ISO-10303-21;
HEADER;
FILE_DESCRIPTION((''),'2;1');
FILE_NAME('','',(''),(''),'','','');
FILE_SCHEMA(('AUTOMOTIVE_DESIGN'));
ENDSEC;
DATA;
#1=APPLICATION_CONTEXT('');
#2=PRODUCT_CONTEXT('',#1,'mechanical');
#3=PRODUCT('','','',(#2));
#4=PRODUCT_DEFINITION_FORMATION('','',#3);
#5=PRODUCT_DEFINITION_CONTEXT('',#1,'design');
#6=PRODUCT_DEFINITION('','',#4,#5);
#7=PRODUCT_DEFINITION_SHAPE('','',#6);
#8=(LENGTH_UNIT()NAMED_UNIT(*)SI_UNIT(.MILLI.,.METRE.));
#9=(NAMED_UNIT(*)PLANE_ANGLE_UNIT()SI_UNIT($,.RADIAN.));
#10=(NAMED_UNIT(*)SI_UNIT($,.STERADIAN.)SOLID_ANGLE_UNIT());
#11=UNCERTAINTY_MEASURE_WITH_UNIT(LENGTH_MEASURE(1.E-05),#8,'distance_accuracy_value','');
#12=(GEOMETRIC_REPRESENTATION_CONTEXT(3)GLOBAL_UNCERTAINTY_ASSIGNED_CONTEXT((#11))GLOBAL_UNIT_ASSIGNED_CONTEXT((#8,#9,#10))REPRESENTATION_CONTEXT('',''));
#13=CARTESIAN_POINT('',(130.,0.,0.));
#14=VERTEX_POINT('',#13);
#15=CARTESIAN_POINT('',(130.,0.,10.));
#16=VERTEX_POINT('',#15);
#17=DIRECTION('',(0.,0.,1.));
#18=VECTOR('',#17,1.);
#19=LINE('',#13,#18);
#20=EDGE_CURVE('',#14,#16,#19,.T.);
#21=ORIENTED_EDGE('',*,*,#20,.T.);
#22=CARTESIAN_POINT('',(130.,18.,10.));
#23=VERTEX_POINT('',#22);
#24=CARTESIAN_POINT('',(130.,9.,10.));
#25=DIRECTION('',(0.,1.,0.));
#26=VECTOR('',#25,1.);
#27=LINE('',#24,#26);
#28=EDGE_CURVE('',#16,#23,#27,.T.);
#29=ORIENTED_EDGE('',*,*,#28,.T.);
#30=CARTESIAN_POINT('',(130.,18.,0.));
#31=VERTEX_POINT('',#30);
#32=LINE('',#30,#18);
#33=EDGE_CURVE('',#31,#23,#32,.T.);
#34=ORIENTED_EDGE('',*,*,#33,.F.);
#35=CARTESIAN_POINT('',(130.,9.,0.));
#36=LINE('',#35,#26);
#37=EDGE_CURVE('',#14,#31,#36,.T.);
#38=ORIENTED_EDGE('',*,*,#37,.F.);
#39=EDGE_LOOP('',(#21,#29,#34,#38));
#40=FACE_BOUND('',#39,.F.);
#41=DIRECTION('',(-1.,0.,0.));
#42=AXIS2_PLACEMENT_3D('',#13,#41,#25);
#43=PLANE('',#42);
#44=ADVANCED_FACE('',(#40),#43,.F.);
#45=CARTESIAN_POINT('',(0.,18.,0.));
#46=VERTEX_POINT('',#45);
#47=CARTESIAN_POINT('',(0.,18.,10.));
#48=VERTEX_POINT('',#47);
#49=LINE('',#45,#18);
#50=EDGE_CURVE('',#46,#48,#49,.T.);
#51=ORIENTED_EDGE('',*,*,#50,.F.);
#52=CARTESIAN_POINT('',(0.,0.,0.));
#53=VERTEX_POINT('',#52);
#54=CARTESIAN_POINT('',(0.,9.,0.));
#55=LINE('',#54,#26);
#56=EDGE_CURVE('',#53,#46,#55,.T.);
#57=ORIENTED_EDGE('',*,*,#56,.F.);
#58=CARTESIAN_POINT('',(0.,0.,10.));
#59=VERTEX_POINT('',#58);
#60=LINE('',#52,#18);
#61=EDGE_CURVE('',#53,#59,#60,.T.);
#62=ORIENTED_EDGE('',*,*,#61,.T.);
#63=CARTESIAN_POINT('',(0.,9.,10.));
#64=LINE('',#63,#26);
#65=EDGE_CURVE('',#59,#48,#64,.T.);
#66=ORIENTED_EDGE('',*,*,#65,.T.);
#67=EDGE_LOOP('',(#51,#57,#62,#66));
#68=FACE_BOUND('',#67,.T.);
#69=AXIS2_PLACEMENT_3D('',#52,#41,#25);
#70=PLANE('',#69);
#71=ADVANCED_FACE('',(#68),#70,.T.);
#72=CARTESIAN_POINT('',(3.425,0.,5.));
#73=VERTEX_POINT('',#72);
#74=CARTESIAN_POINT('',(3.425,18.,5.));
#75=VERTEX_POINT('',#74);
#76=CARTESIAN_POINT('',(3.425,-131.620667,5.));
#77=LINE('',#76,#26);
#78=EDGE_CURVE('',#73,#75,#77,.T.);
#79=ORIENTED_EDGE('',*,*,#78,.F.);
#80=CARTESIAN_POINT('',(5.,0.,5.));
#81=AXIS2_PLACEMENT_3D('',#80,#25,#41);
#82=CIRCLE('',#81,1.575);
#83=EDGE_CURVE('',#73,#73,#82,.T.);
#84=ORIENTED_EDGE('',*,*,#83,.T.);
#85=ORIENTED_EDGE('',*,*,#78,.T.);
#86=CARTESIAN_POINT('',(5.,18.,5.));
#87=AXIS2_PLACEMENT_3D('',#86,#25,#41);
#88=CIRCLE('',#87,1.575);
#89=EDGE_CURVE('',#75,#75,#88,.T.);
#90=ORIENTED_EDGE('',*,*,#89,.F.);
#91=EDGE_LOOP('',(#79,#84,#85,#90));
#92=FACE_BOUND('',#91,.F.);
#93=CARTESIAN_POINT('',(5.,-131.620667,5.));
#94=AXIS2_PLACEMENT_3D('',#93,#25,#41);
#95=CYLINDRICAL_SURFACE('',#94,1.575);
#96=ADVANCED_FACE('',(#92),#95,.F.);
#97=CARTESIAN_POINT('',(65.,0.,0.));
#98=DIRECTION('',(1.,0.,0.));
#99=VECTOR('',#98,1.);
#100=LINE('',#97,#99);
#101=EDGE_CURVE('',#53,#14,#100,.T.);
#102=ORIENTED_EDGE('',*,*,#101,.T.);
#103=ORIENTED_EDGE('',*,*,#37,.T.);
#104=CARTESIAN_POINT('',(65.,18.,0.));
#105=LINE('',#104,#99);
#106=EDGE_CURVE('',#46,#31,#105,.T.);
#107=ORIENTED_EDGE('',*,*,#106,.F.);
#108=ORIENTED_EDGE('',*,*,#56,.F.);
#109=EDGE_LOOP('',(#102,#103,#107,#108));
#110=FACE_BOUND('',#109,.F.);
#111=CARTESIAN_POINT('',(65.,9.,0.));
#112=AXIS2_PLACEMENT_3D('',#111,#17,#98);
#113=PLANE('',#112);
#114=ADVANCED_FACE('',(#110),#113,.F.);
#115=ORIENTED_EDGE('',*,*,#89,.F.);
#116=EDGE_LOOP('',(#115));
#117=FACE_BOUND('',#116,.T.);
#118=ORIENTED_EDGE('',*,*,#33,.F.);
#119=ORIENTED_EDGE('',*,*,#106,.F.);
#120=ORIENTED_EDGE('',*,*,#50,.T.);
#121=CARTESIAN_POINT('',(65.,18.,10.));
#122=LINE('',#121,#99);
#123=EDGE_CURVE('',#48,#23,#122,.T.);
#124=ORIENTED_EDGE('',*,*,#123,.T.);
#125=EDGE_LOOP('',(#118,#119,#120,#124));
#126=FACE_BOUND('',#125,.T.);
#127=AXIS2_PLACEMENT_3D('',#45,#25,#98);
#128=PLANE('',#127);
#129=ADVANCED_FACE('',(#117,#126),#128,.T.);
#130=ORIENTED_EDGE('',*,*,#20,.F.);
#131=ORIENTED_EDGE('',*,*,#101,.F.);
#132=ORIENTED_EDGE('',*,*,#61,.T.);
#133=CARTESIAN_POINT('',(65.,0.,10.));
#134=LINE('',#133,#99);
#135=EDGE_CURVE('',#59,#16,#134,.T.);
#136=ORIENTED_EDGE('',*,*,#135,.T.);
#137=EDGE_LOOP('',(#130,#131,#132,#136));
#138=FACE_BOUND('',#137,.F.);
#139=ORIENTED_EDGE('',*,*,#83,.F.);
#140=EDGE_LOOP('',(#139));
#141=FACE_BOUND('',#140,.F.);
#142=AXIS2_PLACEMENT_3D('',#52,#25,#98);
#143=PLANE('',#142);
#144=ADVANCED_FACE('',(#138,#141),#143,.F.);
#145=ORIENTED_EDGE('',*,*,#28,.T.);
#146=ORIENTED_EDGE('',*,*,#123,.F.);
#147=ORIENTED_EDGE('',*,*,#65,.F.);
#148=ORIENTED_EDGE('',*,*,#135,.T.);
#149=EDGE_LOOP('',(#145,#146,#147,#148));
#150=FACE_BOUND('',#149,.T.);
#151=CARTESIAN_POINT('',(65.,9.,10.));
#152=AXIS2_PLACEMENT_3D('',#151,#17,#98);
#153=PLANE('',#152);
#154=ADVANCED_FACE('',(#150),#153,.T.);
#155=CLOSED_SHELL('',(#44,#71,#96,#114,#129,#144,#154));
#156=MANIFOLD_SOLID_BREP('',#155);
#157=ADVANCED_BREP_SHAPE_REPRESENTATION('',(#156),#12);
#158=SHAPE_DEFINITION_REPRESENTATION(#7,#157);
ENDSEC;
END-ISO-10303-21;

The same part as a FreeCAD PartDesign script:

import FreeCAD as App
import Part
import Sketcher
Q = App.Units.Quantity

doc = App.newDocument("Part")
body = doc.addObject("PartDesign::Body", "Body")

sketch1 = body.newObject("Sketcher::SketchObject", "Sketch")
sketch1.AttachmentSupport = (doc.getObject("XY_Plane"), [""])
sketch1.MapMode = "FlatFace"
sketch1.addGeometry([
    Part.LineSegment(App.Vector(0, 18, 0), App.Vector(0, 0, 0)),
    Part.LineSegment(App.Vector(0, 0, 0), App.Vector(130, 0, 0)),
    Part.LineSegment(App.Vector(130, 0, 0), App.Vector(130, 18, 0)),
    Part.LineSegment(App.Vector(130, 18, 0), App.Vector(0, 18, 0)),
], False)
sketch1.addConstraint([
    Sketcher.Constraint("Coincident", 0, 2, 1, 1),
    Sketcher.Constraint("Coincident", 1, 2, 2, 1),
    Sketcher.Constraint("Coincident", 2, 2, 3, 1),
    Sketcher.Constraint("Coincident", 3, 2, 0, 1),
    Sketcher.Constraint("Vertical", 0),
    Sketcher.Constraint("Horizontal", 1),
    Sketcher.Constraint("Vertical", 2),
    Sketcher.Constraint("Horizontal", 3),
    Sketcher.Constraint("Coincident", 0, 2, -1, 1),
    Sketcher.Constraint("DistanceX", 1, 1, 1, 2, Q("130 mm")),
    Sketcher.Constraint("DistanceY", 0, 2, 0, 1, Q("18 mm")),
])
pad1 = body.newObject("PartDesign::Pad", "Pad")
pad1.Profile = sketch1
pad1.Length = 10

sketch2 = body.newObject("Sketcher::SketchObject", "Sketch001")
sketch2.AttachmentSupport = (doc.getObject("XZ_Plane"), [""])
sketch2.MapMode = "FlatFace"
sketch2.addGeometry(Part.Circle(App.Vector(5, 5, 0), App.Vector(0, 0, 1), 1.6), False)
sketch2.addConstraint([
    Sketcher.Constraint("Diameter", 0, Q("3.15 mm")),
    Sketcher.Constraint("DistanceX", -1, 1, 0, 3, Q("5 mm")),
    Sketcher.Constraint("DistanceY", -1, 1, 0, 3, Q("5 mm")),
])
doc.recompute()
hole = body.newObject("PartDesign::Hole", "Hole")
hole.Profile = sketch2
hole.ThreadType = "None"
hole.Diameter = 3.15
hole.DepthType = "ThroughAll"

doc.recompute()
